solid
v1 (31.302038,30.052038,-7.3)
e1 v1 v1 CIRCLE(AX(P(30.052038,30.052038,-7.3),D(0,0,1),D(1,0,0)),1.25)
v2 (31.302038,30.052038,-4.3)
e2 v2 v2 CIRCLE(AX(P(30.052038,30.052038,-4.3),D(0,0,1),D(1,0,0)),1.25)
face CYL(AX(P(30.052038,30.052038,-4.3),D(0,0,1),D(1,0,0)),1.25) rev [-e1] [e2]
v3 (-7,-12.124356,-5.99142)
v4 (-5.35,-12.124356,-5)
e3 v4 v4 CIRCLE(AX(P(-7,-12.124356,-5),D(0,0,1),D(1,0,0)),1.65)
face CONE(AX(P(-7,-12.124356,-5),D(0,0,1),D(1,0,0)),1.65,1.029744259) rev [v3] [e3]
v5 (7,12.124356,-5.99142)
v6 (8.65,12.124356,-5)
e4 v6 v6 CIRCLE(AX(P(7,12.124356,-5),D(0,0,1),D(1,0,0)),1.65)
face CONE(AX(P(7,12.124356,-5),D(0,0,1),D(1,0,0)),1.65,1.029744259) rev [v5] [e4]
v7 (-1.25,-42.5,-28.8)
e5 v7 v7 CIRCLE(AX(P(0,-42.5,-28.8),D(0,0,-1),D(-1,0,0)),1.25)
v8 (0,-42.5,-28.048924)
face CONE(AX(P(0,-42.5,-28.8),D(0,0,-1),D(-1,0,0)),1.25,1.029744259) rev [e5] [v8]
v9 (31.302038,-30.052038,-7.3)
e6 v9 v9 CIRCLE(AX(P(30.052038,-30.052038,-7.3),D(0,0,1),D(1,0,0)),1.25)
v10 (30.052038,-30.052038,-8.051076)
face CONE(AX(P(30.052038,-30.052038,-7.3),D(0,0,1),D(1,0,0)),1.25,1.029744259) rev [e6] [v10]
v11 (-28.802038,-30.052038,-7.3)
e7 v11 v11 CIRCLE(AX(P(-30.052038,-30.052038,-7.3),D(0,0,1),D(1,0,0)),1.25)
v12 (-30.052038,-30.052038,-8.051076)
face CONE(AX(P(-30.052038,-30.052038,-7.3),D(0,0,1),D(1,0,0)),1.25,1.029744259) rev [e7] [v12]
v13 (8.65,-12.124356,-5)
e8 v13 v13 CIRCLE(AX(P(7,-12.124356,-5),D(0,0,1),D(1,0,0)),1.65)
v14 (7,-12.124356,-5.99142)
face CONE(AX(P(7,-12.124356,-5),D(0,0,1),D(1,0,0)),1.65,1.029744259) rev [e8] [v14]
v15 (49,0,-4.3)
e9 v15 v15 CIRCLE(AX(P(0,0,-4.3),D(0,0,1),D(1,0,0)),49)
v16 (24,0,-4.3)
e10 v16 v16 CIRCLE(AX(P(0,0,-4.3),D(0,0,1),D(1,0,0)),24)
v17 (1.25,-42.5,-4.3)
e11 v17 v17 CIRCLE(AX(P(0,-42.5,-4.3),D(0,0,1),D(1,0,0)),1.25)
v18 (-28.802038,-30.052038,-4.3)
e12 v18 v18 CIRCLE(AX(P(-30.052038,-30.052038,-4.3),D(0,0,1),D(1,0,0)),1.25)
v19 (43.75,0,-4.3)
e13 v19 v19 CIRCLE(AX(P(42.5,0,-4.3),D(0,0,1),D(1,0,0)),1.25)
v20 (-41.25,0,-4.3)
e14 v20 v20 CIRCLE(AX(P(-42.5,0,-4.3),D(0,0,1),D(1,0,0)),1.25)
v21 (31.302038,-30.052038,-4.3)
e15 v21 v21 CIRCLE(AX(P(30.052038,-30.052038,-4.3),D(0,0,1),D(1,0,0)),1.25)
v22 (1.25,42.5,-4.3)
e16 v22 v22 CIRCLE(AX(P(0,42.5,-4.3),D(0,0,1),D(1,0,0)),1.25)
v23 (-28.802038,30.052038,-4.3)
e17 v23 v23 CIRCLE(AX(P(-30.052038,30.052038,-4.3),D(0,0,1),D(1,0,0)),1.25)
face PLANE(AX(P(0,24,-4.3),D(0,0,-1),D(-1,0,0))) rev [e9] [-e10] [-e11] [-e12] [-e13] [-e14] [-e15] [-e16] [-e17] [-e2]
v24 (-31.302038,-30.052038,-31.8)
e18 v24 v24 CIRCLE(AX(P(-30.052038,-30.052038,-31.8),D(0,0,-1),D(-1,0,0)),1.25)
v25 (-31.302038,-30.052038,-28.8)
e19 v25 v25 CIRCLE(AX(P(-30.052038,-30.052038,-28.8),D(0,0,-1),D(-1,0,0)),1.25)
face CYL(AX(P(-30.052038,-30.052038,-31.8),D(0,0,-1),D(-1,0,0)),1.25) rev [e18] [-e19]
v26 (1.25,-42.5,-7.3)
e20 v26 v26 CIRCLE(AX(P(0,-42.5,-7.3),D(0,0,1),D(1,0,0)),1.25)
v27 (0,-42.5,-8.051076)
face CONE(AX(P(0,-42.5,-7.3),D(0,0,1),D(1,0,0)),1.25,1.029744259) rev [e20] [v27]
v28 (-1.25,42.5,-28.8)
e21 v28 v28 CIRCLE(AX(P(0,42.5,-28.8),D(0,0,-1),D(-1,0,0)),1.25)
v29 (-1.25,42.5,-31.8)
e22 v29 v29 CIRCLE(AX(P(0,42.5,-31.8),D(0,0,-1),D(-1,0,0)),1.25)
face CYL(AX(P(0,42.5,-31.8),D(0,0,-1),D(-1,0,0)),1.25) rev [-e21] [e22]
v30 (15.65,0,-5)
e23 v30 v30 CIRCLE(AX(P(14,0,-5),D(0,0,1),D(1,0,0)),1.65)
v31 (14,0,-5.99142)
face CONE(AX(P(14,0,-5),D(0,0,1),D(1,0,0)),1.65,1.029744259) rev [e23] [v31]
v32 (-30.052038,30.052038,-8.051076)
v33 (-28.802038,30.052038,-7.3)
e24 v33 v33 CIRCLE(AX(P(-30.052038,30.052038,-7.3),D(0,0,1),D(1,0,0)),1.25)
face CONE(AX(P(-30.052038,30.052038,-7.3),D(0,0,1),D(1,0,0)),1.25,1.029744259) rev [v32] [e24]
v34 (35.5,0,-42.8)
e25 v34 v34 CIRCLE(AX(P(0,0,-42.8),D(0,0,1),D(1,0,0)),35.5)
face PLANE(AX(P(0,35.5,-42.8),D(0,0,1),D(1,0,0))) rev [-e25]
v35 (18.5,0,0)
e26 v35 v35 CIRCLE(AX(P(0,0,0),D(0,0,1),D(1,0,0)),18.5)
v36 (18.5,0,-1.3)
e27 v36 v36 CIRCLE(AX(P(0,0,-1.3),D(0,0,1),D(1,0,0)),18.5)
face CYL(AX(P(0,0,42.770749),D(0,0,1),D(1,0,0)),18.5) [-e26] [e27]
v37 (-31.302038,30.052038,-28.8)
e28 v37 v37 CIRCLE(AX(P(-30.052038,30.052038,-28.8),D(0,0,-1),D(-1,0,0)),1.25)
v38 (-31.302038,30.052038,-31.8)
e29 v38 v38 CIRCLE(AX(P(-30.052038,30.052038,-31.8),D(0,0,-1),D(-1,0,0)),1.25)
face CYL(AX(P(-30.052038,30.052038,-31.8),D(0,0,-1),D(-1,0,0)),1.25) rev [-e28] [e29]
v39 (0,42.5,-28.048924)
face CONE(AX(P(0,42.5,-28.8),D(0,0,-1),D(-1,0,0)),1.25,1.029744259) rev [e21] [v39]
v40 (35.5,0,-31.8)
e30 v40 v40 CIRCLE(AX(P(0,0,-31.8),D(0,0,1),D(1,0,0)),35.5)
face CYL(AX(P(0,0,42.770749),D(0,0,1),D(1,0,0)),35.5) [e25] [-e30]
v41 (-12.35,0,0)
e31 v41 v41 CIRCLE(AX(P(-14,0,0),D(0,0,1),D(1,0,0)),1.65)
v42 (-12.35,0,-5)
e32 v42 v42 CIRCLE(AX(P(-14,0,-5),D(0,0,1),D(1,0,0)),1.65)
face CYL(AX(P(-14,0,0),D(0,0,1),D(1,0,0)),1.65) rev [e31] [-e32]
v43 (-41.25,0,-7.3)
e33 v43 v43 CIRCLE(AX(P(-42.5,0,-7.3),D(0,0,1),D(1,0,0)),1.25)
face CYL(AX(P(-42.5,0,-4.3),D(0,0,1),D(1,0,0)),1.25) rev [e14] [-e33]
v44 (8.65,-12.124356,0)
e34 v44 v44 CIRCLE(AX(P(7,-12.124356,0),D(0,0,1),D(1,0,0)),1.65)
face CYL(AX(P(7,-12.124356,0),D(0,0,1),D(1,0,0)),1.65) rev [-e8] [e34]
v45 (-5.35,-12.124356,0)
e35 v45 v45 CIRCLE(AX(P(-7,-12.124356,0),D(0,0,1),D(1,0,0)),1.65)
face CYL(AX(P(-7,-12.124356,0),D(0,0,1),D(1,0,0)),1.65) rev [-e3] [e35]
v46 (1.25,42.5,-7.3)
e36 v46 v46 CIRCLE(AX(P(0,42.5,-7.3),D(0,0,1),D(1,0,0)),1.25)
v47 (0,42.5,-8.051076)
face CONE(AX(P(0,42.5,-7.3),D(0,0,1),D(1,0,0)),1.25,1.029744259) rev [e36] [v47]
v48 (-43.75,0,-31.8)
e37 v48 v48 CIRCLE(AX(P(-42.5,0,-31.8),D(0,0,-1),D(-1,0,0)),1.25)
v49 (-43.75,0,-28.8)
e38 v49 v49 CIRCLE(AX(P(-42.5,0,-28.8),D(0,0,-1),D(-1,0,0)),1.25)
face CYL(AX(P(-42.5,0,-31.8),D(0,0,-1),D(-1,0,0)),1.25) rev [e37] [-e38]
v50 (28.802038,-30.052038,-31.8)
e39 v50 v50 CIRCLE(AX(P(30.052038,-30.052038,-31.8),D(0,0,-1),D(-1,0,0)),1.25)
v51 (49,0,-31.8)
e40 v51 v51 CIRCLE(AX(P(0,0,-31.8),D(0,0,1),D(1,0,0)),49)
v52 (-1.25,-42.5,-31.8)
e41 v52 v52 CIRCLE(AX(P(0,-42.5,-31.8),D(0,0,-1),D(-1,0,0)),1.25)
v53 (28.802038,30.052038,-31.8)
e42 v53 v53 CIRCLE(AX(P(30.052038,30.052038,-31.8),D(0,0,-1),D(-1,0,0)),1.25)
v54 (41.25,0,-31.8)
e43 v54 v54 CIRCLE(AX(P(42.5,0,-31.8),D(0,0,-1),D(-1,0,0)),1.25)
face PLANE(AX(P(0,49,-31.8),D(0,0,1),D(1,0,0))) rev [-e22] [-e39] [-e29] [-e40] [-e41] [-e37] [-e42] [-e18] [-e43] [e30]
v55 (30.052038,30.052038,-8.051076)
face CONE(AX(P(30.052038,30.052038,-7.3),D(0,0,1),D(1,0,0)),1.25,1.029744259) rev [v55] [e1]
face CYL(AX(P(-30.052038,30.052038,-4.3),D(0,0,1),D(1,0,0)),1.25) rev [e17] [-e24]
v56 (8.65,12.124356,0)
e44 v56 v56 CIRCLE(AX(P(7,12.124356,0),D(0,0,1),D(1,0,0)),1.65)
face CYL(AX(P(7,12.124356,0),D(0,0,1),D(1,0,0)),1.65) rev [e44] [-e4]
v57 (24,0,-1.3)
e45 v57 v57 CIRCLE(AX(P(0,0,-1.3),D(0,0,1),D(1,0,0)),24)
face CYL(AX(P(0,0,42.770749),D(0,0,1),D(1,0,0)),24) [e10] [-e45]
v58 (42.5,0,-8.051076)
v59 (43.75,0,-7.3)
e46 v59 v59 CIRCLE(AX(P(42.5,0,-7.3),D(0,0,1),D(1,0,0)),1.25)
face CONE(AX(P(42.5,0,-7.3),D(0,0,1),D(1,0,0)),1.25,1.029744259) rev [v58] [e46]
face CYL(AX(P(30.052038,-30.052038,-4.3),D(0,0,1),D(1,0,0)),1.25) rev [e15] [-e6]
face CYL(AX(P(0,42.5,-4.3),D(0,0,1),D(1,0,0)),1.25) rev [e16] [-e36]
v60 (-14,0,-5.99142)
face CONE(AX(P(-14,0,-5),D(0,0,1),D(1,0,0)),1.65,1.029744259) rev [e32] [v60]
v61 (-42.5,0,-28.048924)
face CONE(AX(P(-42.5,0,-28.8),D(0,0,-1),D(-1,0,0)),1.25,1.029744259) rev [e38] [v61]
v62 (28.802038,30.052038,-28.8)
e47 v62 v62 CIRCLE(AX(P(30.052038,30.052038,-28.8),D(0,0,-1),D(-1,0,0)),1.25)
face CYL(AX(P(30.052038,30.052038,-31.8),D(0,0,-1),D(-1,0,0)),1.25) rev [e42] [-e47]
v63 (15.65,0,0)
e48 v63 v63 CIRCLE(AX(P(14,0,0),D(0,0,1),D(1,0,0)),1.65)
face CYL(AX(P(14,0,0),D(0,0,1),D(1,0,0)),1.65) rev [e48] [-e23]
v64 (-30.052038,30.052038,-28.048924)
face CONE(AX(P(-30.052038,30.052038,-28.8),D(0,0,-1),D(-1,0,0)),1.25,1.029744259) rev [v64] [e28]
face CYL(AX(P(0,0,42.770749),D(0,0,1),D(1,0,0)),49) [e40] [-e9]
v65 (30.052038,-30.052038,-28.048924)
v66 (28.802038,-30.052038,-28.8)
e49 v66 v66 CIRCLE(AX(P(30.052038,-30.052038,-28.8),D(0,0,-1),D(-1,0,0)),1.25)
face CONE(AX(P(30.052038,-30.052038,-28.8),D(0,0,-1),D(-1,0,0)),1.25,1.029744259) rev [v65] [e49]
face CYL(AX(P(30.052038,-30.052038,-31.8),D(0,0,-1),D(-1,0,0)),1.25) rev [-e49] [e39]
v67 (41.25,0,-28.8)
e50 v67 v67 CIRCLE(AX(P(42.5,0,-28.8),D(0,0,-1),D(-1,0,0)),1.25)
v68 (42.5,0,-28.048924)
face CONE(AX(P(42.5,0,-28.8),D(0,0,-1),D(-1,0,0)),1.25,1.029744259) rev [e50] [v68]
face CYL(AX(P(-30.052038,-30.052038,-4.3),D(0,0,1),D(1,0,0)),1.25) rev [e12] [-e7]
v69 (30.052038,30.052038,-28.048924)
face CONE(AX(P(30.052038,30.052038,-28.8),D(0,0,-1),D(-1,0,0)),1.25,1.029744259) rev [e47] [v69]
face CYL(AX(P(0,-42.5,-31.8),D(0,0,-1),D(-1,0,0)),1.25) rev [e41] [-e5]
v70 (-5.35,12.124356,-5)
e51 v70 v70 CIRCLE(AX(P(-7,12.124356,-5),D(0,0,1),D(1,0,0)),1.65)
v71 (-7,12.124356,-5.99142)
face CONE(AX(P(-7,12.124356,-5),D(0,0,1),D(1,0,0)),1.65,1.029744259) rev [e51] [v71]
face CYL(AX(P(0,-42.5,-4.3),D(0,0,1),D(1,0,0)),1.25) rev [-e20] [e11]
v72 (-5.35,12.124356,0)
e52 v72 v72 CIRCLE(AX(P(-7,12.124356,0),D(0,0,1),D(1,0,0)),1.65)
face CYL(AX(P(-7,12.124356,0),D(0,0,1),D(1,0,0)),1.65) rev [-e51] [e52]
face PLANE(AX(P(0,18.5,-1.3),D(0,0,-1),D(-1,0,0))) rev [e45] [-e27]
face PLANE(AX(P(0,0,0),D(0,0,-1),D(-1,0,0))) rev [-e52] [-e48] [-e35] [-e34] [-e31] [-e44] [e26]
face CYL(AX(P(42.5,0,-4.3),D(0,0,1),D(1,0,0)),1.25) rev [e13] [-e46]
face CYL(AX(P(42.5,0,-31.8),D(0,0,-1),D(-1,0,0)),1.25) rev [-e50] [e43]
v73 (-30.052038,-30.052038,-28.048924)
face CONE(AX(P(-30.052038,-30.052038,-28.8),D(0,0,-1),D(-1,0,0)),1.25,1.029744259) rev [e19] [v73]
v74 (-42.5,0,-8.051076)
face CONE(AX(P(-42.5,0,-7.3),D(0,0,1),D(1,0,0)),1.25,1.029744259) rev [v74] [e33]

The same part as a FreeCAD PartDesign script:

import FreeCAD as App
import Part
import Sketcher

V = App.Vector

doc = App.newDocument("Part")
body = doc.addObject("PartDesign::Body", "Body")

# Sketch on YZ plane
sketch1 = doc.addObject("Sketcher::SketchObject", "Sketch")
body.addObject(sketch1)
sketch1.AttachmentSupport = (doc.YZ_Plane, [""])
sketch1.MapMode = "FlatFace"
sketch1.addGeometry(Part.LineSegment(V(18.5, 0, 0), V(0, 0, 0)), False)
sketch1.addGeometry(Part.LineSegment(V(0, 0, 0), V(0, -42.8, 0)), False)
sketch1.addGeometry(Part.LineSegment(V(0, -42.8, 0), V(35.5, -42.8, 0)), False)
sketch1.addGeometry(Part.LineSegment(V(35.5, -42.8, 0), V(35.5, -31.8, 0)), False)
sketch1.addGeometry(Part.LineSegment(V(35.5, -31.8, 0), V(49, -31.8, 0)), False)
sketch1.addGeometry(Part.LineSegment(V(49, -31.8, 0), V(49, -4.3, 0)), False)
sketch1.addGeometry(Part.LineSegment(V(49, -4.3, 0), V(24, -4.3, 0)), False)
sketch1.addGeometry(Part.LineSegment(V(24, -4.3, 0), V(24, -1.3, 0)), False)
sketch1.addGeometry(Part.LineSegment(V(24, -1.3, 0), V(18.5, -1.3, 0)), False)
sketch1.addGeometry(Part.LineSegment(V(18.5, -1.3, 0), V(18.5, 0, 0)), False)
sketch1.addConstraint(Sketcher.Constraint("Coincident", 0, 2, 1, 1))
sketch1.addConstraint(Sketcher.Constraint("Coincident", 1, 2, 2, 1))
sketch1.addConstraint(Sketcher.Constraint("Coincident", 2, 2, 3, 1))
sketch1.addConstraint(Sketcher.Constraint("Coincident", 3, 2, 4, 1))
sketch1.addConstraint(Sketcher.Constraint("Coincident", 4, 2, 5, 1))
sketch1.addConstraint(Sketcher.Constraint("Coincident", 5, 2, 6, 1))
sketch1.addConstraint(Sketcher.Constraint("Coincident", 6, 2, 7, 1))
sketch1.addConstraint(Sketcher.Constraint("Coincident", 7, 2, 8, 1))
sketch1.addConstraint(Sketcher.Constraint("Coincident", 8, 2, 9, 1))
sketch1.addConstraint(Sketcher.Constraint("Coincident", 9, 2, 0, 1))
sketch1.addConstraint(Sketcher.Constraint("Horizontal", 0))
sketch1.addConstraint(Sketcher.Constraint("Vertical", 1))
sketch1.addConstraint(Sketcher.Constraint("Horizontal", 2))
sketch1.addConstraint(Sketcher.Constraint("Vertical", 3))
sketch1.addConstraint(Sketcher.Constraint("Horizontal", 4))
sketch1.addConstraint(Sketcher.Constraint("Vertical", 5))
sketch1.addConstraint(Sketcher.Constraint("Horizontal", 6))
sketch1.addConstraint(Sketcher.Constraint("Vertical", 7))
sketch1.addConstraint(Sketcher.Constraint("Horizontal", 8))
sketch1.addConstraint(Sketcher.Constraint("Vertical", 9))
sketch1.addConstraint(Sketcher.Constraint("Coincident", 0, 2, -1, 1))
sketch1.addConstraint(Sketcher.Constraint("DistanceX", 6, 2, 6, 1, 25.0))
sketch1.addConstraint(Sketcher.Constraint("DistanceY", 3, 1, 3, 2, 11.0))
sketch1.addConstraint(Sketcher.Constraint("DistanceY", 7, 1, 7, 2, 3.0))
sketch1.addConstraint(Sketcher.Constraint("DistanceX", 0, 2, 0, 1, 18.5))
sketch1.addConstraint(Sketcher.Constraint("DistanceX", 2, 1, 2, 2, 35.5))
sketch1.addConstraint(Sketcher.Constraint("DistanceX", 4, 1, 4, 2, 13.5))
sketch1.addConstraint(Sketcher.Constraint("DistanceY", 1, 2, 1, 1, 42.8))
sketch1.addConstraint(Sketcher.Constraint("DistanceY", 5, 1, 5, 2, 27.5))
revolution = doc.addObject("PartDesign::Revolution", "Revolution")
body.addObject(revolution)
revolution.Profile = sketch1
revolution.ReferenceAxis = (sketch1, ["V_Axis"])
revolution.Angle = 360

# Sketch on XY plane
sketch2 = doc.addObject("Sketcher::SketchObject", "Sketch001")
body.addObject(sketch2)
sketch2.AttachmentSupport = (doc.XY_Plane, [""])
sketch2.MapMode = "FlatFace"
sketch2.addGeometry(Part.Circle(V(-14, 0, 0), V(0, 0, 1), 1.65), False)
sketch2.addGeometry(Part.Circle(V(-7, 12.124356, 0), V(0, 0, 1), 1.65), False)
sketch2.addGeometry(Part.Circle(V(7, 12.124356, 0), V(0, 0, 1), 1.65), False)
sketch2.addGeometry(Part.Circle(V(14, 0, 0), V(0, 0, 1), 1.65), False)
sketch2.addGeometry(Part.Circle(V(7, -12.124356, 0), V(0, 0, 1), 1.65), False)
sketch2.addGeometry(Part.Circle(V(-7, -12.124356, 0), V(0, 0, 1), 1.65), False)
sketch2.addConstraint(Sketcher.Constraint("Equal", 0, 1))
sketch2.addConstraint(Sketcher.Constraint("Equal", 1, 2))
sketch2.addConstraint(Sketcher.Constraint("Equal", 2, 3))
sketch2.addConstraint(Sketcher.Constraint("Equal", 3, 4))
sketch2.addConstraint(Sketcher.Constraint("Equal", 4, 5))
sketch2.addConstraint(Sketcher.Constraint("Symmetric", 0, 3, 3, 3, -1, 1))
sketch2.addConstraint(Sketcher.Constraint("Symmetric", 1, 3, 4, 3, -1, 1))
sketch2.addConstraint(Sketcher.Constraint("Symmetric", 2, 3, 5, 3, -1, 1))
sketch2.addConstraint(Sketcher.Constraint("Symmetric", 1, 3, 2, 3, -2))
sketch2.addConstraint(Sketcher.Constraint("PointOnObject", 0, 3, -1))
sketch2.addConstraint(Sketcher.Constraint("Diameter", 0, 3.3))
sketch2.addConstraint(Sketcher.Constraint("DistanceX", 0, 3, -1, 1, 14.0))
sketch2.addConstraint(Sketcher.Constraint("DistanceX", 1, 3, -1, 1, 7.0))
sketch2.addConstraint(Sketcher.Constraint("DistanceY", 4, 3, 2, 3, 24.248711))
doc.recompute()
hole = doc.addObject("PartDesign::Hole", "Hole")
body.addObject(hole)
hole.Profile = sketch2
hole.ThreadType = "None"
hole.Diameter = 3.3
hole.DepthType = "Dimension"
hole.Depth = 5
hole.DrillPoint = "Angled"
hole.DrillPointAngle = 118

# Sketch on XY plane
sketch3 = doc.addObject("Sketcher::SketchObject", "Sketch002")
body.addObject(sketch3)
sketch3.AttachmentSupport = (doc.XY_Plane, [""])
sketch3.MapMode = "FlatFace"
sketch3.AttachmentOffset = App.Placement(V(0, 0, -4.3), App.Rotation())
sketch3.addGeometry(Part.Circle(V(-42.5, 0, 0), V(0, 0, 1), 1.25), False)
sketch3.addGeometry(Part.Circle(V(-30.052038, 30.052038, 0), V(0, 0, 1), 1.25), False)
sketch3.addGeometry(Part.Circle(V(0, 42.5, 0), V(0, 0, 1), 1.25), False)
sketch3.addGeometry(Part.Circle(V(30.052038, 30.052038, 0), V(0, 0, 1), 1.25), False)
sketch3.addGeometry(Part.Circle(V(42.5, 0, 0), V(0, 0, 1), 1.25), False)
sketch3.addGeometry(Part.Circle(V(30.052038, -30.052038, 0), V(0, 0, 1), 1.25), False)
sketch3.addGeometry(Part.Circle(V(0, -42.5, 0), V(0, 0, 1), 1.25), False)
sketch3.addGeometry(Part.Circle(V(-30.052038, -30.052038, 0), V(0, 0, 1), 1.25), False)
sketch3.addConstraint(Sketcher.Constraint("Equal", 0, 1))
sketch3.addConstraint(Sketcher.Constraint("Equal", 1, 2))
sketch3.addConstraint(Sketcher.Constraint("Equal", 2, 3))
sketch3.addConstraint(Sketcher.Constraint("Equal", 3, 4))
sketch3.addConstraint(Sketcher.Constraint("Equal", 4, 5))
sketch3.addConstraint(Sketcher.Constraint("Equal", 5, 6))
sketch3.addConstraint(Sketcher.Constraint("Equal", 6, 7))
sketch3.addConstraint(Sketcher.Constraint("Symmetric", 0, 3, 4, 3, -1, 1))
sketch3.addConstraint(Sketcher.Constraint("Symmetric", 1, 3, 5, 3, -1, 1))
sketch3.addConstraint(Sketcher.Constraint("Symmetric", 2, 3, 6, 3, -1, 1))
sketch3.addConstraint(Sketcher.Constraint("Symmetric", 3, 3, 7, 3, -1, 1))
sketch3.addConstraint(Sketcher.Constraint("Symmetric", 1, 3, 3, 3, -2))
sketch3.addConstraint(Sketcher.Constraint("PointOnObject", 0, 3, -1))
sketch3.addConstraint(Sketcher.Constraint("PointOnObject", 2, 3, -2))
sketch3.addConstraint(Sketcher.Constraint("Diameter", 0, 2.5))
sketch3.addConstraint(Sketcher.Constraint("DistanceX", 0, 3, 4, 3, 85.0))
sketch3.addConstraint(Sketcher.Constraint("DistanceY", -1, 1, 2, 3, 42.5))
sketch3.addConstraint(Sketcher.Constraint("DistanceX", 1, 3, -1, 1, 30.052038))
sketch3.addConstraint(Sketcher.Constraint("DistanceY", -1, 1, 1, 3, 30.052038))
doc.recompute()
hole2 = doc.addObject("PartDesign::Hole", "Hole001")
body.addObject(hole2)
hole2.Profile = sketch3
hole2.ThreadType = "None"
hole2.Diameter = 2.5
hole2.DepthType = "Dimension"
hole2.Depth = 3
hole2.DrillPoint = "Angled"
hole2.DrillPointAngle = 118

# Sketch on XY plane
sketch4 = doc.addObject("Sketcher::SketchObject", "Sketch003")
body.addObject(sketch4)
sketch4.AttachmentSupport = (doc.XY_Plane, [""])
sketch4.MapMode = "FlatFace"
sketch4.AttachmentOffset = App.Placement(V(0, 0, -31.8), App.Rotation())
sketch4.addGeometry(Part.Circle(V(42.5, 0, 0), V(0, 0, 1), 1.25), False)
sketch4.addGeometry(Part.Circle(V(30.052038, 30.052038, 0), V(0, 0, 1), 1.25), False)
sketch4.addGeometry(Part.Circle(V(0, 42.5, 0), V(0, 0, 1), 1.25), False)
sketch4.addGeometry(Part.Circle(V(-30.052038, 30.052038, 0), V(0, 0, 1), 1.25), False)
sketch4.addGeometry(Part.Circle(V(-42.5, 0, 0), V(0, 0, 1), 1.25), False)
sketch4.addGeometry(Part.Circle(V(-30.052038, -30.052038, 0), V(0, 0, 1), 1.25), False)
sketch4.addGeometry(Part.Circle(V(0, -42.5, 0), V(0, 0, 1), 1.25), False)
sketch4.addGeometry(Part.Circle(V(30.052038, -30.052038, 0), V(0, 0, 1), 1.25), False)
sketch4.addConstraint(Sketcher.Constraint("Equal", 0, 1))
sketch4.addConstraint(Sketcher.Constraint("Equal", 1, 2))
sketch4.addConstraint(Sketcher.Constraint("Equal", 2, 3))
sketch4.addConstraint(Sketcher.Constraint("Equal", 3, 4))
sketch4.addConstraint(Sketcher.Constraint("Equal", 4, 5))
sketch4.addConstraint(Sketcher.Constraint("Equal", 5, 6))
sketch4.addConstraint(Sketcher.Constraint("Equal", 6, 7))
sketch4.addConstraint(Sketcher.Constraint("Symmetric", 0, 3, 4, 3, -1, 1))
sketch4.addConstraint(Sketcher.Constraint("Symmetric", 1, 3, 5, 3, -1, 1))
sketch4.addConstraint(Sketcher.Constraint("Symmetric", 2, 3, 6, 3, -1, 1))
sketch4.addConstraint(Sketcher.Constraint("Symmetric", 3, 3, 7, 3, -1, 1))
sketch4.addConstraint(Sketcher.Constraint("Symmetric", 1, 3, 3, 3, -2))
sketch4.addConstraint(Sketcher.Constraint("PointOnObject", 0, 3, -1))
sketch4.addConstraint(Sketcher.Constraint("PointOnObject", 2, 3, -2))
sketch4.addConstraint(Sketcher.Constraint("Diameter", 0, 2.5))
sketch4.addConstraint(Sketcher.Constraint("DistanceX", 4, 3, 0, 3, 85.0))
sketch4.addConstraint(Sketcher.Constraint("DistanceY", -1, 1, 2, 3, 42.5))
sketch4.addConstraint(Sketcher.Constraint("DistanceX", -1, 1, 1, 3, 30.052038))
sketch4.addConstraint(Sketcher.Constraint("DistanceY", -1, 1, 1, 3, 30.052038))
doc.recompute()
hole3 = doc.addObject("PartDesign::Hole", "Hole002")
body.addObject(hole3)
hole3.Profile = sketch4
hole3.ThreadType = "None"
hole3.Diameter = 2.5
hole3.DepthType = "Dimension"
hole3.Depth = 3
hole3.DrillPoint = "Angled"
hole3.DrillPointAngle = 118
hole3.Reversed = True

doc.recompute()
